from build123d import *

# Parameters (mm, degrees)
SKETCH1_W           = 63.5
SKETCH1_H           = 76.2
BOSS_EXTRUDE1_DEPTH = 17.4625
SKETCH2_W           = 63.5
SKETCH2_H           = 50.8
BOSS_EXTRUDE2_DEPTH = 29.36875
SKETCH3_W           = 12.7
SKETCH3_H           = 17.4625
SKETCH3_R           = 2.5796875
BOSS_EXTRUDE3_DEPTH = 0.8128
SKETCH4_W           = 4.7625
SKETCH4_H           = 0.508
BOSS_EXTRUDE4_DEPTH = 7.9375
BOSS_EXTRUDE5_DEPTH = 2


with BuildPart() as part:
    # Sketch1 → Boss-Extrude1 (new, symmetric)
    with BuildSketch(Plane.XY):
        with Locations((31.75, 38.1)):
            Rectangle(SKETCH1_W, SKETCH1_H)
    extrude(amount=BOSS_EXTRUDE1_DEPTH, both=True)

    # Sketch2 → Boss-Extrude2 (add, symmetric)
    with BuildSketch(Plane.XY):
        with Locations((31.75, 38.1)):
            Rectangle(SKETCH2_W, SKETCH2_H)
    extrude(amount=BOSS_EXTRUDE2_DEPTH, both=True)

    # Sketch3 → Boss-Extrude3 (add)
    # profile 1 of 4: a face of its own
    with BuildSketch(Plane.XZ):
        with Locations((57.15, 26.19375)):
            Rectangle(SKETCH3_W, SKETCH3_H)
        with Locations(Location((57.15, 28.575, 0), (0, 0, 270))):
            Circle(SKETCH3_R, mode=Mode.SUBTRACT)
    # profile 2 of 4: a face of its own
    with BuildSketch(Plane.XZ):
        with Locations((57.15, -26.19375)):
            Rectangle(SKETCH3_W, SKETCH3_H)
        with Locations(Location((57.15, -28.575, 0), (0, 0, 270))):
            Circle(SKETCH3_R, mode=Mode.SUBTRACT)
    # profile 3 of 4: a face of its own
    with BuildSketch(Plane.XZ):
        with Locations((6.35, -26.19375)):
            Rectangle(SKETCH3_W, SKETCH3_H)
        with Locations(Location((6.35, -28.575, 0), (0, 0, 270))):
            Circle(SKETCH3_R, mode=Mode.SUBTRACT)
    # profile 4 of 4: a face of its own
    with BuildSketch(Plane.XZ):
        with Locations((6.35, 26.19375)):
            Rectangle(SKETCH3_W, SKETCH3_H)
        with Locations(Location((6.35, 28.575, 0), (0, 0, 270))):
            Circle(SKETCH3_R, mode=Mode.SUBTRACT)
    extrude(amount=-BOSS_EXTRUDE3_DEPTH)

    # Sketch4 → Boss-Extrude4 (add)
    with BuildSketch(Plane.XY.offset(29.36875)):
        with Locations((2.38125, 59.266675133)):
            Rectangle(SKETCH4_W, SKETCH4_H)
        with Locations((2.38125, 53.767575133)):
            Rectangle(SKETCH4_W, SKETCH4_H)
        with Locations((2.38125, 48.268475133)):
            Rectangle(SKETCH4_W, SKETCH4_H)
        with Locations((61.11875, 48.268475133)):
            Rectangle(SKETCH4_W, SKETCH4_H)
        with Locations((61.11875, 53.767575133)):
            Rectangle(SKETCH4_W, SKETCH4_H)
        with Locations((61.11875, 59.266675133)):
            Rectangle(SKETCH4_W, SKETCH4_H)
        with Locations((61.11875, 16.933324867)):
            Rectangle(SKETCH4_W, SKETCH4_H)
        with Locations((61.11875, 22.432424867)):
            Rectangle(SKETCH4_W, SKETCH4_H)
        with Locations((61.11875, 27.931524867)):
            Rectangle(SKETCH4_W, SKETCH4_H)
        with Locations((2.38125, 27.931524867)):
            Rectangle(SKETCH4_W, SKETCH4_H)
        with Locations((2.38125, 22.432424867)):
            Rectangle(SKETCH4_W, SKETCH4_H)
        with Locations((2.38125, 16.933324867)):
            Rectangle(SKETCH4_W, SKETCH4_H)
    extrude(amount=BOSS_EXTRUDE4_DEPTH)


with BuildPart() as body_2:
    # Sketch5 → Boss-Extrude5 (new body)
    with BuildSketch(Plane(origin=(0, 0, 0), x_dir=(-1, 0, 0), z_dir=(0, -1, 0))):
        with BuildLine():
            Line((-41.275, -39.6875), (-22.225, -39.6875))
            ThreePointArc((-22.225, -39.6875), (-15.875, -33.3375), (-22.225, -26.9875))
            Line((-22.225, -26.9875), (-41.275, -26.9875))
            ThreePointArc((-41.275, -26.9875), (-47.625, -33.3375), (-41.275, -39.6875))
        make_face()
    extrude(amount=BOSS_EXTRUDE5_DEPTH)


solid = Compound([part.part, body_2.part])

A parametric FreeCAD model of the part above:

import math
import FreeCAD as App
import Part
import Sketcher
from FreeCAD import Vector
Q = App.Units.Quantity


def add_polygon(sketch, points):
    """Adds a closed chain of lines whose ends are joined by coincident constraints."""
    first, n = sketch.GeometryCount, len(points)
    for a, b in zip(points, points[1:] + points[:1]):
        sketch.addGeometry(Part.LineSegment(App.Vector(*a, 0), App.Vector(*b, 0)), False)
    for i in range(n):
        sketch.addConstraint(Sketcher.Constraint("Coincident", first + i, 2, first + (i + 1) % n, 1))

doc = App.newDocument("Part")
body = doc.addObject("PartDesign::Body", "Body")

# Sketch on XY plane
sketch1 = doc.addObject("Sketcher::SketchObject", "Sketch")
body.addObject(sketch1)
sketch1.AttachmentSupport = (doc.XY_Plane, [""])
sketch1.MapMode = "FlatFace"
add_polygon(sketch1, [(0, 76), (0, 0), (64, 0), (64, 76)])  # lines 0-3
sketch1.addConstraint(Sketcher.Constraint("Vertical", 0))
sketch1.addConstraint(Sketcher.Constraint("Horizontal", 1))
sketch1.addConstraint(Sketcher.Constraint("Vertical", 2))
sketch1.addConstraint(Sketcher.Constraint("Horizontal", 3))
sketch1.addConstraint(Sketcher.Constraint("Coincident", 0, 2, -1, 1))
sketch1.addConstraint(Sketcher.Constraint("DistanceY", 0, 2, 0, 1, Q("3 in")))
sketch1.addConstraint(Sketcher.Constraint("DistanceX", 1, 1, 1, 2, Q("2.5 in")))
pad1 = doc.addObject("PartDesign::Pad", "Pad")
body.addObject(pad1)
pad1.Profile = sketch1
pad1.Length = Q("1.375 in")
pad1.Midplane = True

# Sketch on XY plane
sketch2 = doc.addObject("Sketcher::SketchObject", "Sketch001")
body.addObject(sketch2)
sketch2.AttachmentSupport = (doc.XY_Plane, [""])
sketch2.MapMode = "FlatFace"
add_polygon(sketch2, [(0, 64), (0, 13), (64, 13), (64, 64)])  # lines 0-3
sketch2.addConstraint(Sketcher.Constraint("Vertical", 0))
sketch2.addConstraint(Sketcher.Constraint("Horizontal", 1))
sketch2.addConstraint(Sketcher.Constraint("Vertical", 2))
sketch2.addConstraint(Sketcher.Constraint("Horizontal", 3))
sketch2.addConstraint(Sketcher.Constraint("PointOnObject", 0, 2, -2))
sketch2.addConstraint(Sketcher.Constraint("DistanceY", 0, 2, 0, 1, Q("2 in")))
sketch2.addConstraint(Sketcher.Constraint("DistanceX", 1, 1, 1, 2, Q("2.5 in")))
sketch2.addConstraint(Sketcher.Constraint("DistanceY", -1, 1, 0, 2, Q("0.5 in")))
pad2 = doc.addObject("PartDesign::Pad", "Pad001")
body.addObject(pad2)
pad2.Profile = sketch2
pad2.Length = Q("2.3125 in")
pad2.Midplane = True

# Sketch on XZ plane
sketch3 = doc.addObject("Sketcher::SketchObject", "Sketch002")
body.addObject(sketch3)
sketch3.AttachmentSupport = (doc.XZ_Plane, [""])
sketch3.MapMode = "FlatFace"
add_polygon(sketch3, [(50.8, 34.9), (50.8, 17.5), (63.5, 17.5), (63.5, 34.9)])  # lines 0-3
sketch3.addGeometry(Part.Circle(Vector(57.1, 28.6, 0), Vector(0, 0, 1), 2.6), False)  # 4
add_polygon(sketch3, [(50.8, -17.5), (50.8, -34.9), (63.5, -34.9), (63.5, -17.5)])  # lines 5-8
sketch3.addGeometry(Part.Circle(Vector(57.1, -28.6, 0), Vector(0, 0, 1), 2.6), False)  # 9
add_polygon(sketch3, [(0, -17.5), (0, -34.9), (12.7, -34.9), (12.7, -17.5)])  # lines 10-13
sketch3.addGeometry(Part.Circle(Vector(6.3, -28.6, 0), Vector(0, 0, 1), 2.6), False)  # 14
add_polygon(sketch3, [(0, 34.9), (0, 17.5), (12.7, 17.5), (12.7, 34.9)])  # lines 15-18
sketch3.addGeometry(Part.Circle(Vector(6.3, 28.6, 0), Vector(0, 0, 1), 2.6), False)  # 19
sketch3.addConstraint(Sketcher.Constraint("Vertical", 0))
sketch3.addConstraint(Sketcher.Constraint("Horizontal", 1))
sketch3.addConstraint(Sketcher.Constraint("Vertical", 2))
sketch3.addConstraint(Sketcher.Constraint("Horizontal", 3))
sketch3.addConstraint(Sketcher.Constraint("Vertical", 5))
sketch3.addConstraint(Sketcher.Constraint("Horizontal", 6))
sketch3.addConstraint(Sketcher.Constraint("Vertical", 7))
sketch3.addConstraint(Sketcher.Constraint("Horizontal", 8))
sketch3.addConstraint(Sketcher.Constraint("Vertical", 10))
sketch3.addConstraint(Sketcher.Constraint("Horizontal", 11))
sketch3.addConstraint(Sketcher.Constraint("Vertical", 12))
sketch3.addConstraint(Sketcher.Constraint("Horizontal", 13))
sketch3.addConstraint(Sketcher.Constraint("Vertical", 15))
sketch3.addConstraint(Sketcher.Constraint("Horizontal", 16))
sketch3.addConstraint(Sketcher.Constraint("Vertical", 17))
sketch3.addConstraint(Sketcher.Constraint("Horizontal", 18))
sketch3.addConstraint(Sketcher.Constraint("Equal", 4, 9))
sketch3.addConstraint(Sketcher.Constraint("Equal", 9, 14))
sketch3.addConstraint(Sketcher.Constraint("Equal", 14, 19))
sketch3.addConstraint(Sketcher.Constraint("Symmetric", 13, 2, 15, 2, -1, 1))
sketch3.addConstraint(Sketcher.Constraint("Symmetric", 4, 3, 9, 3, -1))
sketch3.addConstraint(Sketcher.Constraint("Symmetric", 14, 3, 19, 3, -1))
sketch3.addConstraint(Sketcher.Constraint("Symmetric", 3, 2, 5, 2, -1))
sketch3.addConstraint(Sketcher.Constraint("Symmetric", 1, 2, 7, 2, -1))
sketch3.addConstraint(Sketcher.Constraint("Symmetric", 11, 2, 17, 2, -1))
sketch3.addConstraint(Sketcher.Constraint("PointOnObject", 10, 2, -2))
sketch3.addConstraint(Sketcher.Constraint("Horizontal", 9, 3, 14, 3))
sketch3.addConstraint(Sketcher.Constraint("Horizontal", 6, 2, 10, 2))
sketch3.addConstraint(Sketcher.Constraint("Horizontal", 8, 2, 12, 2))
sketch3.addConstraint(Sketcher.Constraint("Equal", 8, 11))
sketch3.addConstraint(Sketcher.Constraint("Diameter", 4, Q("0.203125 in")))
sketch3.addConstraint(Sketcher.Constraint("DistanceX", 1, 1, 1, 2, Q("0.5 in")))
sketch3.addConstraint(Sketcher.Constraint("DistanceX", -1, 1, 0, 2, Q("2 in")))
sketch3.addConstraint(Sketcher.Constraint("DistanceX", 14, 3, 9, 3, Q("2 in")))
sketch3.addConstraint(Sketcher.Constraint("DistanceY", 9, 3, 2, 2, Q("2.5 in")))
sketch3.addConstraint(Sketcher.Constraint("DistanceY", 0, 2, 0, 1, Q("0.6875 in")))
sketch3.addConstraint(Sketcher.Constraint("DistanceX", -1, 1, 4, 3, Q("2.25 in")))
sketch3.addConstraint(Sketcher.Constraint("DistanceY", 9, 3, 4, 3, Q("2.25 in")))
pad3 = doc.addObject("PartDesign::Pad", "Pad002")
body.addObject(pad3)
pad3.Profile = sketch3
pad3.Length = Q("0.032 in")
pad3.Reversed = True

# Sketch on XY plane
sketch4 = doc.addObject("Sketcher::SketchObject", "Sketch003")
body.addObject(sketch4)
sketch4.AttachmentSupport = (doc.XY_Plane, [""])
sketch4.MapMode = "FlatFace"
sketch4.AttachmentOffset = App.Placement(Vector(0, 0, 1.15625 * 25.4), App.Rotation())
add_polygon(sketch4, [(0, 59.5), (0, 59), (4.8, 59), (4.8, 59.5)])  # lines 0-3
add_polygon(sketch4, [(0, 54), (0, 53.5), (4.8, 53.5), (4.8, 54)])  # lines 4-7
add_polygon(sketch4, [(0, 48.5), (0, 48), (4.8, 48), (4.8, 48.5)])  # lines 8-11
add_polygon(sketch4, [(58.7, 48.5), (58.7, 48), (63.5, 48), (63.5, 48.5)])  # lines 12-15
add_polygon(sketch4, [(58.7, 54), (58.7, 53.5), (63.5, 53.5), (63.5, 54)])  # lines 16-19
add_polygon(sketch4, [(58.7, 59.5), (58.7, 59), (63.5, 59), (63.5, 59.5)])  # lines 20-23
add_polygon(sketch4, [(58.7, 17.2), (58.7, 16.7), (63.5, 16.7), (63.5, 17.2)])  # lines 24-27
add_polygon(sketch4, [(58.7, 22.7), (58.7, 22.2), (63.5, 22.2), (63.5, 22.7)])  # lines 28-31
add_polygon(sketch4, [(58.7, 28.2), (58.7, 27.7), (63.5, 27.7), (63.5, 28.2)])  # lines 32-35
add_polygon(sketch4, [(0, 28.2), (0, 27.7), (4.8, 27.7), (4.8, 28.2)])  # lines 36-39
add_polygon(sketch4, [(0, 22.7), (0, 22.2), (4.8, 22.2), (4.8, 22.7)])  # lines 40-43
add_polygon(sketch4, [(0, 17.2), (0, 16.7), (4.8, 16.7), (4.8, 17.2)])  # lines 44-47
sketch4.addConstraint(Sketcher.Constraint("Vertical", 0))
sketch4.addConstraint(Sketcher.Constraint("Horizontal", 1))
sketch4.addConstraint(Sketcher.Constraint("Vertical", 2))
sketch4.addConstraint(Sketcher.Constraint("Horizontal", 3))
sketch4.addConstraint(Sketcher.Constraint("Vertical", 4))
sketch4.addConstraint(Sketcher.Constraint("Horizontal", 5))
sketch4.addConstraint(Sketcher.Constraint("Vertical", 6))
sketch4.addConstraint(Sketcher.Constraint("Horizontal", 7))
sketch4.addConstraint(Sketcher.Constraint("Vertical", 8))
sketch4.addConstraint(Sketcher.Constraint("Horizontal", 9))
sketch4.addConstraint(Sketcher.Constraint("Vertical", 10))
sketch4.addConstraint(Sketcher.Constraint("Horizontal", 11))
sketch4.addConstraint(Sketcher.Constraint("Vertical", 12))
sketch4.addConstraint(Sketcher.Constraint("Horizontal", 13))
sketch4.addConstraint(Sketcher.Constraint("Vertical", 14))
sketch4.addConstraint(Sketcher.Constraint("Horizontal", 15))
sketch4.addConstraint(Sketcher.Constraint("Vertical", 16))
sketch4.addConstraint(Sketcher.Constraint("Horizontal", 17))
sketch4.addConstraint(Sketcher.Constraint("Vertical", 18))
sketch4.addConstraint(Sketcher.Constraint("Horizontal", 19))
sketch4.addConstraint(Sketcher.Constraint("Vertical", 20))
sketch4.addConstraint(Sketcher.Constraint("Horizontal", 21))
sketch4.addConstraint(Sketcher.Constraint("Vertical", 22))
sketch4.addConstraint(Sketcher.Constraint("Horizontal", 23))
sketch4.addConstraint(Sketcher.Constraint("Vertical", 24))
sketch4.addConstraint(Sketcher.Constraint("Horizontal", 25))
sketch4.addConstraint(Sketcher.Constraint("Vertical", 26))
sketch4.addConstraint(Sketcher.Constraint("Horizontal", 27))
sketch4.addConstraint(Sketcher.Constraint("Vertical", 28))
sketch4.addConstraint(Sketcher.Constraint("Horizontal", 29))
sketch4.addConstraint(Sketcher.Constraint("Vertical", 30))
sketch4.addConstraint(Sketcher.Constraint("Horizontal", 31))
sketch4.addConstraint(Sketcher.Constraint("Vertical", 32))
sketch4.addConstraint(Sketcher.Constraint("Horizontal", 33))
sketch4.addConstraint(Sketcher.Constraint("Vertical", 34))
sketch4.addConstraint(Sketcher.Constraint("Horizontal", 35))
sketch4.addConstraint(Sketcher.Constraint("Vertical", 36))
sketch4.addConstraint(Sketcher.Constraint("Horizontal", 37))
sketch4.addConstraint(Sketcher.Constraint("Vertical", 38))
sketch4.addConstraint(Sketcher.Constraint("Horizontal", 39))
sketch4.addConstraint(Sketcher.Constraint("Vertical", 40))
sketch4.addConstraint(Sketcher.Constraint("Horizontal", 41))
sketch4.addConstraint(Sketcher.Constraint("Vertical", 42))
sketch4.addConstraint(Sketcher.Constraint("Horizontal", 43))
sketch4.addConstraint(Sketcher.Constraint("Vertical", 44))
sketch4.addConstraint(Sketcher.Constraint("Horizontal", 45))
sketch4.addConstraint(Sketcher.Constraint("Vertical", 46))
sketch4.addConstraint(Sketcher.Constraint("Horizontal", 47))
sketch4.addConstraint(Sketcher.Constraint("PointOnObject", 0, 2, -2))
sketch4.addConstraint(Sketcher.Constraint("PointOnObject", 4, 2, -2))
sketch4.addConstraint(Sketcher.Constraint("PointOnObject", 8, 2, -2))
sketch4.addConstraint(Sketcher.Constraint("PointOnObject", 36, 2, -2))
sketch4.addConstraint(Sketcher.Constraint("PointOnObject", 40, 2, -2))
sketch4.addConstraint(Sketcher.Constraint("PointOnObject", 44, 2, -2))
sketch4.addConstraint(Sketcher.Constraint("Horizontal", 9, 2, 12, 2))
sketch4.addConstraint(Sketcher.Constraint("Horizontal", 11, 2, 14, 2))
sketch4.addConstraint(Sketcher.Constraint("Horizontal", 5, 2, 16, 2))
sketch4.addConstraint(Sketcher.Constraint("Horizontal", 7, 2, 18, 2))
sketch4.addConstraint(Sketcher.Constraint("Horizontal", 1, 2, 20, 2))
sketch4.addConstraint(Sketcher.Constraint("Horizontal", 3, 2, 22, 2))
sketch4.addConstraint(Sketcher.Constraint("Horizontal", 33, 2, 36, 2))
sketch4.addConstraint(Sketcher.Constraint("Horizontal", 35, 2, 38, 2))
sketch4.addConstraint(Sketcher.Constraint("Horizontal", 29, 2, 40, 2))
sketch4.addConstraint(Sketcher.Constraint("Horizontal", 31, 2, 42, 2))
sketch4.addConstraint(Sketcher.Constraint("Horizontal", 25, 2, 44, 2))
sketch4.addConstraint(Sketcher.Constraint("Horizontal", 27, 2, 46, 2))
sketch4.addConstraint(Sketcher.Constraint("Vertical", 2, 2, 5, 2))
sketch4.addConstraint(Sketcher.Constraint("Vertical", 6, 2, 9, 2))
sketch4.addConstraint(Sketcher.Constraint("Vertical", 15, 2, 16, 2))
sketch4.addConstraint(Sketcher.Constraint("Vertical", 14, 2, 17, 2))
sketch4.addConstraint(Sketcher.Constraint("Vertical", 19, 2, 20, 2))
sketch4.addConstraint(Sketcher.Constraint("Vertical", 18, 2, 21, 2))
sketch4.addConstraint(Sketcher.Constraint("Vertical", 23, 2, 24, 2))
sketch4.addConstraint(Sketcher.Constraint("Vertical", 22, 2, 25, 2))
sketch4.addConstraint(Sketcher.Constraint("Vertical", 27, 2, 28, 2))
sketch4.addConstraint(Sketcher.Constraint("Vertical", 26, 2, 29, 2))
sketch4.addConstraint(Sketcher.Constraint("Vertical", 31, 2, 32, 2))
sketch4.addConstraint(Sketcher.Constraint("Vertical", 30, 2, 33, 2))
sketch4.addConstraint(Sketcher.Constraint("Vertical", 10, 2, 37, 2))
sketch4.addConstraint(Sketcher.Constraint("Vertical", 38, 2, 41, 2))
sketch4.addConstraint(Sketcher.Constraint("Vertical", 42, 2, 45, 2))
sketch4.addConstraint(Sketcher.Constraint("Equal", 11, 13))
sketch4.addConstraint(Sketcher.Constraint("Equal", 2, 4))
sketch4.addConstraint(Sketcher.Constraint("Equal", 6, 8))
sketch4.addConstraint(Sketcher.Constraint("Equal", 22, 24))
sketch4.addConstraint(Sketcher.Constraint("Equal", 26, 28))
sketch4.addConstraint(Sketcher.Constraint("Equal", 30, 32))
sketch4.addConstraint(Sketcher.Constraint("DistanceY", 0, 2, 0, 1, Q("0.02 in")))
sketch4.addConstraint(Sketcher.Constraint("DistanceX", -1, 1, 13, 2, Q("2.5 in")))
sketch4.addConstraint(Sketcher.Constraint("DistanceX", 1, 1, 1, 2, Q("0.1875 in")))
sketch4.addConstraint(Sketcher.Constraint("DistanceY", 8, 2, 0, 2, Q("0.433 in")))
sketch4.addConstraint(Sketcher.Constraint("DistanceY", 27, 2, 32, 2, Q("0.413 in")))
sketch4.addConstraint(Sketcher.Constraint("DistanceY", 4, 2, 0, 2, Q("0.2165 in")))
sketch4.addConstraint(Sketcher.Constraint("DistanceY", 27, 2, 28, 2, Q("0.1965 in")))
sketch4.addConstraint(Sketcher.Constraint("DistanceY", 24, 2, 12, 2, 31.33515))
sketch4.addConstraint(Sketcher.Constraint("DistanceY", -1, 1, 0, 2, 59.012675))
pad4 = doc.addObject("PartDesign::Pad", "Pad003")
body.addObject(pad4)
pad4.Profile = sketch4
pad4.Length = Q("0.3125 in")
body2 = doc.addObject("PartDesign::Body", "Body001")

# Sketch on XZ plane
sketch5 = doc.addObject("Sketcher::SketchObject", "Sketch004")
body2.addObject(sketch5)
sketch5.AttachmentSupport = (doc.getObject("XZ_Plane001"), [""])
sketch5.MapMode = "FlatFace"
sketch5.addGeometry(Part.LineSegment(Vector(41, 40, 0), Vector(22, 40, 0)), False)
sketch5.addGeometry(Part.ArcOfCircle(Part.Circle(Vector(22, 33, 0), Vector(0, 0, 1), 6), math.radians(90), math.radians(270)), False)
sketch5.addGeometry(Part.LineSegment(Vector(22, 27, 0), Vector(41, 27, 0)), False)
sketch5.addGeometry(Part.ArcOfCircle(Part.Circle(Vector(41, 33, 0), Vector(0, 0, 1), 6), math.radians(-90), math.radians(90)), False)
sketch5.addConstraint(Sketcher.Constraint("Tangent", 0, 2, 1, 1))
sketch5.addConstraint(Sketcher.Constraint("Tangent", 1, 2, 2, 1))
sketch5.addConstraint(Sketcher.Constraint("Tangent", 2, 2, 3, 1))
sketch5.addConstraint(Sketcher.Constraint("Tangent", 3, 2, 0, 1))
sketch5.addConstraint(Sketcher.Constraint("Horizontal", 0))
sketch5.addConstraint(Sketcher.Constraint("Horizontal", 2))
sketch5.addConstraint(Sketcher.Constraint("Radius", 1, Q("0.25 in")))
sketch5.addConstraint(Sketcher.Constraint("DistanceX", 0, 2, 0, 1, Q("0.75 in")))
sketch5.addConstraint(Sketcher.Constraint("DistanceX", -1, 1, 1, 3, Q("0.875 in")))
sketch5.addConstraint(Sketcher.Constraint("DistanceY", -1, 1, 1, 3, Q("1.3125 in")))
pad5 = doc.addObject("PartDesign::Pad", "Pad004")
body2.addObject(pad5)
pad5.Profile = sketch5
pad5.Length = 2

doc.recompute()
